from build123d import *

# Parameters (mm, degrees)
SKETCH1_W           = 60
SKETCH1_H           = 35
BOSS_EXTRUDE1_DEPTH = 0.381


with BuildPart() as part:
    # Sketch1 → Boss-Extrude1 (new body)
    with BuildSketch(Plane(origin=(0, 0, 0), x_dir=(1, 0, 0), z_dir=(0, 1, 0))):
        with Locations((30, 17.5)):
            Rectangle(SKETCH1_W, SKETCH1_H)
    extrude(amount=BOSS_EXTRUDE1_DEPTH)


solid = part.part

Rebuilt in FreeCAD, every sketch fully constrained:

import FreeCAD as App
import Part
import Sketcher

V = App.Vector
Q = App.Units.Quantity

doc = App.newDocument("Part")
body = doc.addObject("PartDesign::Body", "Body")

# Sketch on XZ plane
sketch1 = doc.addObject("Sketcher::SketchObject", "Sketch")
body.addObject(sketch1)
sketch1.AttachmentSupport = (doc.XZ_Plane, [""])
sketch1.MapMode = "FlatFace"
sketch1.addGeometry([
    Part.LineSegment(V(0, -35, 0), V(0, 0, 0)),
    Part.LineSegment(V(0, 0, 0), V(60, 0, 0)),
    Part.LineSegment(V(60, 0, 0), V(60, -35, 0)),
    Part.LineSegment(V(60, -35, 0), V(0, -35, 0)),
], False)
sketch1.addConstraint([
    Sketcher.Constraint("Coincident", 0, 2, 1, 1),
    Sketcher.Constraint("Coincident", 1, 2, 2, 1),
    Sketcher.Constraint("Coincident", 2, 2, 3, 1),
    Sketcher.Constraint("Coincident", 3, 2, 0, 1),
    Sketcher.Constraint("Vertical", 0),
    Sketcher.Constraint("Horizontal", 1),
    Sketcher.Constraint("Vertical", 2),
    Sketcher.Constraint("Horizontal", 3),
    Sketcher.Constraint("Coincident", 0, 2, -1, 1),
    Sketcher.Constraint("DistanceX", 1, 1, 1, 2, Q("60 mm")),
    Sketcher.Constraint("DistanceY", 0, 1, 0, 2, Q("35 mm")),
])
pad1 = doc.addObject("PartDesign::Pad", "Pad")
body.addObject(pad1)
pad1.Profile = sketch1
pad1.Length = 0.381
pad1.Reversed = True

doc.recompute()
